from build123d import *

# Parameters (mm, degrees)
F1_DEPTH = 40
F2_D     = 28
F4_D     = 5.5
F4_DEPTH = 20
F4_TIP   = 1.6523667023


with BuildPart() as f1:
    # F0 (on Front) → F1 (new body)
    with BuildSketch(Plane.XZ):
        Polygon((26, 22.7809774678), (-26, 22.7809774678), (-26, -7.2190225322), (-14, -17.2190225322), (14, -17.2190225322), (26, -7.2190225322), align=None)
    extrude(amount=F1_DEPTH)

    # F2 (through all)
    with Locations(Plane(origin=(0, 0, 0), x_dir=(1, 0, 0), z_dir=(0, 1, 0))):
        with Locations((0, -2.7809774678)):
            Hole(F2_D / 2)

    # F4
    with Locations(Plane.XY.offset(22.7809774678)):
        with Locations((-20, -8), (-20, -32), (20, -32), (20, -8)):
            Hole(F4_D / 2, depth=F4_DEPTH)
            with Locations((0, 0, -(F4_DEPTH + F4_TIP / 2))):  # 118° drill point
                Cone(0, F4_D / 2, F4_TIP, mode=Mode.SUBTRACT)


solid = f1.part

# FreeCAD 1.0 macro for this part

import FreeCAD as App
import Part
import Sketcher
from FreeCAD import Vector
Q = App.Units.Quantity


def add_polygon(sketch, points):
    """Adds a closed chain of lines whose ends are joined by coincident constraints."""
    first, n = sketch.GeometryCount, len(points)
    for a, b in zip(points, points[1:] + points[:1]):
        sketch.addGeometry(Part.LineSegment(App.Vector(*a, 0), App.Vector(*b, 0)), False)
    for i in range(n):
        sketch.addConstraint(Sketcher.Constraint("Coincident", first + i, 2, first + (i + 1) % n, 1))

doc = App.newDocument("Part")
params = doc.addObject("Spreadsheet::Sheet", "Params")
for row, (alias, value) in enumerate([
    ("sketch1_width", "52 mm"),
    ("sketch1_width2", "28 mm"),
    ("sketch1_height", "30 mm"),
    ("pad1_length", "40 mm"),
    ("sketch2_diameter", "28 mm"),
    ("hole_diameter", "28 mm"),
    ("sketch3_diameter", "5.5 mm"),
    ("hole2_diameter", "5.5 mm"),
    ("hole2_depth", "20 mm"),
], start=1):
    params.set(f"A{row}", alias)
    params.set(f"B{row}", "=" + value)
    params.setAlias(f"B{row}", alias)

body = doc.addObject("PartDesign::Body", "Body")

sketch1 = body.newObject("Sketcher::SketchObject", "Sketch")
sketch1.AttachmentSupport = (doc.getObject("XZ_Plane"), [""])
sketch1.MapMode = "FlatFace"
add_polygon(sketch1, [(26, 23), (-26, 23), (-26, -7), (-14, -17), (14, -17), (26, -7)])
sketch1.addConstraint([
    Sketcher.Constraint("Horizontal", 0),
    Sketcher.Constraint("Vertical", 1),
    Sketcher.Constraint("Horizontal", 3),
    Sketcher.Constraint("Vertical", 5),
    Sketcher.Constraint("Symmetric", 1, 2, 4, 2, -2),
    Sketcher.Constraint("Equal", 2, 4),
    Sketcher.Constraint("DistanceX", 0, 2, 0, 1, Q("52 mm")),
    Sketcher.Constraint("DistanceX", 3, 1, 3, 2, Q("28 mm")),
    Sketcher.Constraint("DistanceY", 1, 2, 1, 1, Q("30 mm")),
    Sketcher.Constraint("DistanceY", 2, 2, 1, 2, Q("10 mm")),
    Sketcher.Constraint("DistanceY", -1, 1, 0, 2, Q("22.780977 mm")),
])
sketch1.setExpression("Constraints[12]", "Params.sketch1_width")
sketch1.setExpression("Constraints[13]", "Params.sketch1_width2")
sketch1.setExpression("Constraints[14]", "Params.sketch1_height")
pad1 = body.newObject("PartDesign::Pad", "Pad")
pad1.Profile = sketch1
pad1.setExpression("Length", "Params.pad1_length")

sketch2 = body.newObject("Sketcher::SketchObject", "Sketch001")
sketch2.AttachmentSupport = (doc.getObject("XZ_Plane"), [""])
sketch2.MapMode = "FlatFace"
sketch2.addGeometry(Part.Circle(Vector(0, 3, 0), Vector(0, 0, 1), 14), False)
sketch2.addConstraint([
    Sketcher.Constraint("PointOnObject", 0, 3, -2),
    Sketcher.Constraint("Diameter", 0, Q("28 mm")),
    Sketcher.Constraint("DistanceY", -1, 1, 0, 3, Q("2.780977 mm")),
])
sketch2.setExpression("Constraints[1]", "Params.sketch2_diameter")
doc.recompute()
hole = body.newObject("PartDesign::Hole", "Hole")
hole.Profile = sketch2
hole.ThreadType = "None"
hole.setExpression("Diameter", "Params.hole_diameter")
hole.DepthType = "ThroughAll"
hole.Reversed = True

sketch3 = body.newObject("Sketcher::SketchObject", "Sketch002")
sketch3.AttachmentSupport = (doc.getObject("XY_Plane"), [""])
sketch3.MapMode = "FlatFace"
sketch3.AttachmentOffset = App.Placement(Vector(0, 0, 22.780977), App.Rotation())
sketch3.addGeometry([
    Part.Circle(Vector(-20, -8, 0), Vector(0, 0, 1), 2.8),
    Part.Circle(Vector(-20, -32, 0), Vector(0, 0, 1), 2.8),
    Part.Circle(Vector(20, -32, 0), Vector(0, 0, 1), 2.8),
    Part.Circle(Vector(20, -8, 0), Vector(0, 0, 1), 2.8),
], False)
sketch3.addConstraint([
    Sketcher.Constraint("Equal", 0, 1),
    Sketcher.Constraint("Equal", 1, 2),
    Sketcher.Constraint("Equal", 2, 3),
    Sketcher.Constraint("Symmetric", 1, 3, 2, 3, -2),
    Sketcher.Constraint("Symmetric", 0, 3, 3, 3, -2),
    Sketcher.Constraint("Vertical", 0, 3, 1, 3),
    Sketcher.Constraint("Diameter", 0, Q("5.5 mm")),
    Sketcher.Constraint("DistanceX", 0, 3, -1, 1, Q("20 mm")),
    Sketcher.Constraint("DistanceY", 0, 3, -1, 1, Q("8 mm")),
    Sketcher.Constraint("DistanceY", 1, 3, -1, 1, Q("32 mm")),
])
sketch3.setExpression("Constraints[6]", "Params.sketch3_diameter")
doc.recompute()
hole2 = body.newObject("PartDesign::Hole", "Hole001")
hole2.Profile = sketch3
hole2.ThreadType = "None"
hole2.setExpression("Diameter", "Params.hole2_diameter")
hole2.DepthType = "Dimension"
hole2.setExpression("Depth", "Params.hole2_depth")
hole2.DrillPoint = "Angled"
hole2.DrillPointAngle = 118

doc.recompute()
